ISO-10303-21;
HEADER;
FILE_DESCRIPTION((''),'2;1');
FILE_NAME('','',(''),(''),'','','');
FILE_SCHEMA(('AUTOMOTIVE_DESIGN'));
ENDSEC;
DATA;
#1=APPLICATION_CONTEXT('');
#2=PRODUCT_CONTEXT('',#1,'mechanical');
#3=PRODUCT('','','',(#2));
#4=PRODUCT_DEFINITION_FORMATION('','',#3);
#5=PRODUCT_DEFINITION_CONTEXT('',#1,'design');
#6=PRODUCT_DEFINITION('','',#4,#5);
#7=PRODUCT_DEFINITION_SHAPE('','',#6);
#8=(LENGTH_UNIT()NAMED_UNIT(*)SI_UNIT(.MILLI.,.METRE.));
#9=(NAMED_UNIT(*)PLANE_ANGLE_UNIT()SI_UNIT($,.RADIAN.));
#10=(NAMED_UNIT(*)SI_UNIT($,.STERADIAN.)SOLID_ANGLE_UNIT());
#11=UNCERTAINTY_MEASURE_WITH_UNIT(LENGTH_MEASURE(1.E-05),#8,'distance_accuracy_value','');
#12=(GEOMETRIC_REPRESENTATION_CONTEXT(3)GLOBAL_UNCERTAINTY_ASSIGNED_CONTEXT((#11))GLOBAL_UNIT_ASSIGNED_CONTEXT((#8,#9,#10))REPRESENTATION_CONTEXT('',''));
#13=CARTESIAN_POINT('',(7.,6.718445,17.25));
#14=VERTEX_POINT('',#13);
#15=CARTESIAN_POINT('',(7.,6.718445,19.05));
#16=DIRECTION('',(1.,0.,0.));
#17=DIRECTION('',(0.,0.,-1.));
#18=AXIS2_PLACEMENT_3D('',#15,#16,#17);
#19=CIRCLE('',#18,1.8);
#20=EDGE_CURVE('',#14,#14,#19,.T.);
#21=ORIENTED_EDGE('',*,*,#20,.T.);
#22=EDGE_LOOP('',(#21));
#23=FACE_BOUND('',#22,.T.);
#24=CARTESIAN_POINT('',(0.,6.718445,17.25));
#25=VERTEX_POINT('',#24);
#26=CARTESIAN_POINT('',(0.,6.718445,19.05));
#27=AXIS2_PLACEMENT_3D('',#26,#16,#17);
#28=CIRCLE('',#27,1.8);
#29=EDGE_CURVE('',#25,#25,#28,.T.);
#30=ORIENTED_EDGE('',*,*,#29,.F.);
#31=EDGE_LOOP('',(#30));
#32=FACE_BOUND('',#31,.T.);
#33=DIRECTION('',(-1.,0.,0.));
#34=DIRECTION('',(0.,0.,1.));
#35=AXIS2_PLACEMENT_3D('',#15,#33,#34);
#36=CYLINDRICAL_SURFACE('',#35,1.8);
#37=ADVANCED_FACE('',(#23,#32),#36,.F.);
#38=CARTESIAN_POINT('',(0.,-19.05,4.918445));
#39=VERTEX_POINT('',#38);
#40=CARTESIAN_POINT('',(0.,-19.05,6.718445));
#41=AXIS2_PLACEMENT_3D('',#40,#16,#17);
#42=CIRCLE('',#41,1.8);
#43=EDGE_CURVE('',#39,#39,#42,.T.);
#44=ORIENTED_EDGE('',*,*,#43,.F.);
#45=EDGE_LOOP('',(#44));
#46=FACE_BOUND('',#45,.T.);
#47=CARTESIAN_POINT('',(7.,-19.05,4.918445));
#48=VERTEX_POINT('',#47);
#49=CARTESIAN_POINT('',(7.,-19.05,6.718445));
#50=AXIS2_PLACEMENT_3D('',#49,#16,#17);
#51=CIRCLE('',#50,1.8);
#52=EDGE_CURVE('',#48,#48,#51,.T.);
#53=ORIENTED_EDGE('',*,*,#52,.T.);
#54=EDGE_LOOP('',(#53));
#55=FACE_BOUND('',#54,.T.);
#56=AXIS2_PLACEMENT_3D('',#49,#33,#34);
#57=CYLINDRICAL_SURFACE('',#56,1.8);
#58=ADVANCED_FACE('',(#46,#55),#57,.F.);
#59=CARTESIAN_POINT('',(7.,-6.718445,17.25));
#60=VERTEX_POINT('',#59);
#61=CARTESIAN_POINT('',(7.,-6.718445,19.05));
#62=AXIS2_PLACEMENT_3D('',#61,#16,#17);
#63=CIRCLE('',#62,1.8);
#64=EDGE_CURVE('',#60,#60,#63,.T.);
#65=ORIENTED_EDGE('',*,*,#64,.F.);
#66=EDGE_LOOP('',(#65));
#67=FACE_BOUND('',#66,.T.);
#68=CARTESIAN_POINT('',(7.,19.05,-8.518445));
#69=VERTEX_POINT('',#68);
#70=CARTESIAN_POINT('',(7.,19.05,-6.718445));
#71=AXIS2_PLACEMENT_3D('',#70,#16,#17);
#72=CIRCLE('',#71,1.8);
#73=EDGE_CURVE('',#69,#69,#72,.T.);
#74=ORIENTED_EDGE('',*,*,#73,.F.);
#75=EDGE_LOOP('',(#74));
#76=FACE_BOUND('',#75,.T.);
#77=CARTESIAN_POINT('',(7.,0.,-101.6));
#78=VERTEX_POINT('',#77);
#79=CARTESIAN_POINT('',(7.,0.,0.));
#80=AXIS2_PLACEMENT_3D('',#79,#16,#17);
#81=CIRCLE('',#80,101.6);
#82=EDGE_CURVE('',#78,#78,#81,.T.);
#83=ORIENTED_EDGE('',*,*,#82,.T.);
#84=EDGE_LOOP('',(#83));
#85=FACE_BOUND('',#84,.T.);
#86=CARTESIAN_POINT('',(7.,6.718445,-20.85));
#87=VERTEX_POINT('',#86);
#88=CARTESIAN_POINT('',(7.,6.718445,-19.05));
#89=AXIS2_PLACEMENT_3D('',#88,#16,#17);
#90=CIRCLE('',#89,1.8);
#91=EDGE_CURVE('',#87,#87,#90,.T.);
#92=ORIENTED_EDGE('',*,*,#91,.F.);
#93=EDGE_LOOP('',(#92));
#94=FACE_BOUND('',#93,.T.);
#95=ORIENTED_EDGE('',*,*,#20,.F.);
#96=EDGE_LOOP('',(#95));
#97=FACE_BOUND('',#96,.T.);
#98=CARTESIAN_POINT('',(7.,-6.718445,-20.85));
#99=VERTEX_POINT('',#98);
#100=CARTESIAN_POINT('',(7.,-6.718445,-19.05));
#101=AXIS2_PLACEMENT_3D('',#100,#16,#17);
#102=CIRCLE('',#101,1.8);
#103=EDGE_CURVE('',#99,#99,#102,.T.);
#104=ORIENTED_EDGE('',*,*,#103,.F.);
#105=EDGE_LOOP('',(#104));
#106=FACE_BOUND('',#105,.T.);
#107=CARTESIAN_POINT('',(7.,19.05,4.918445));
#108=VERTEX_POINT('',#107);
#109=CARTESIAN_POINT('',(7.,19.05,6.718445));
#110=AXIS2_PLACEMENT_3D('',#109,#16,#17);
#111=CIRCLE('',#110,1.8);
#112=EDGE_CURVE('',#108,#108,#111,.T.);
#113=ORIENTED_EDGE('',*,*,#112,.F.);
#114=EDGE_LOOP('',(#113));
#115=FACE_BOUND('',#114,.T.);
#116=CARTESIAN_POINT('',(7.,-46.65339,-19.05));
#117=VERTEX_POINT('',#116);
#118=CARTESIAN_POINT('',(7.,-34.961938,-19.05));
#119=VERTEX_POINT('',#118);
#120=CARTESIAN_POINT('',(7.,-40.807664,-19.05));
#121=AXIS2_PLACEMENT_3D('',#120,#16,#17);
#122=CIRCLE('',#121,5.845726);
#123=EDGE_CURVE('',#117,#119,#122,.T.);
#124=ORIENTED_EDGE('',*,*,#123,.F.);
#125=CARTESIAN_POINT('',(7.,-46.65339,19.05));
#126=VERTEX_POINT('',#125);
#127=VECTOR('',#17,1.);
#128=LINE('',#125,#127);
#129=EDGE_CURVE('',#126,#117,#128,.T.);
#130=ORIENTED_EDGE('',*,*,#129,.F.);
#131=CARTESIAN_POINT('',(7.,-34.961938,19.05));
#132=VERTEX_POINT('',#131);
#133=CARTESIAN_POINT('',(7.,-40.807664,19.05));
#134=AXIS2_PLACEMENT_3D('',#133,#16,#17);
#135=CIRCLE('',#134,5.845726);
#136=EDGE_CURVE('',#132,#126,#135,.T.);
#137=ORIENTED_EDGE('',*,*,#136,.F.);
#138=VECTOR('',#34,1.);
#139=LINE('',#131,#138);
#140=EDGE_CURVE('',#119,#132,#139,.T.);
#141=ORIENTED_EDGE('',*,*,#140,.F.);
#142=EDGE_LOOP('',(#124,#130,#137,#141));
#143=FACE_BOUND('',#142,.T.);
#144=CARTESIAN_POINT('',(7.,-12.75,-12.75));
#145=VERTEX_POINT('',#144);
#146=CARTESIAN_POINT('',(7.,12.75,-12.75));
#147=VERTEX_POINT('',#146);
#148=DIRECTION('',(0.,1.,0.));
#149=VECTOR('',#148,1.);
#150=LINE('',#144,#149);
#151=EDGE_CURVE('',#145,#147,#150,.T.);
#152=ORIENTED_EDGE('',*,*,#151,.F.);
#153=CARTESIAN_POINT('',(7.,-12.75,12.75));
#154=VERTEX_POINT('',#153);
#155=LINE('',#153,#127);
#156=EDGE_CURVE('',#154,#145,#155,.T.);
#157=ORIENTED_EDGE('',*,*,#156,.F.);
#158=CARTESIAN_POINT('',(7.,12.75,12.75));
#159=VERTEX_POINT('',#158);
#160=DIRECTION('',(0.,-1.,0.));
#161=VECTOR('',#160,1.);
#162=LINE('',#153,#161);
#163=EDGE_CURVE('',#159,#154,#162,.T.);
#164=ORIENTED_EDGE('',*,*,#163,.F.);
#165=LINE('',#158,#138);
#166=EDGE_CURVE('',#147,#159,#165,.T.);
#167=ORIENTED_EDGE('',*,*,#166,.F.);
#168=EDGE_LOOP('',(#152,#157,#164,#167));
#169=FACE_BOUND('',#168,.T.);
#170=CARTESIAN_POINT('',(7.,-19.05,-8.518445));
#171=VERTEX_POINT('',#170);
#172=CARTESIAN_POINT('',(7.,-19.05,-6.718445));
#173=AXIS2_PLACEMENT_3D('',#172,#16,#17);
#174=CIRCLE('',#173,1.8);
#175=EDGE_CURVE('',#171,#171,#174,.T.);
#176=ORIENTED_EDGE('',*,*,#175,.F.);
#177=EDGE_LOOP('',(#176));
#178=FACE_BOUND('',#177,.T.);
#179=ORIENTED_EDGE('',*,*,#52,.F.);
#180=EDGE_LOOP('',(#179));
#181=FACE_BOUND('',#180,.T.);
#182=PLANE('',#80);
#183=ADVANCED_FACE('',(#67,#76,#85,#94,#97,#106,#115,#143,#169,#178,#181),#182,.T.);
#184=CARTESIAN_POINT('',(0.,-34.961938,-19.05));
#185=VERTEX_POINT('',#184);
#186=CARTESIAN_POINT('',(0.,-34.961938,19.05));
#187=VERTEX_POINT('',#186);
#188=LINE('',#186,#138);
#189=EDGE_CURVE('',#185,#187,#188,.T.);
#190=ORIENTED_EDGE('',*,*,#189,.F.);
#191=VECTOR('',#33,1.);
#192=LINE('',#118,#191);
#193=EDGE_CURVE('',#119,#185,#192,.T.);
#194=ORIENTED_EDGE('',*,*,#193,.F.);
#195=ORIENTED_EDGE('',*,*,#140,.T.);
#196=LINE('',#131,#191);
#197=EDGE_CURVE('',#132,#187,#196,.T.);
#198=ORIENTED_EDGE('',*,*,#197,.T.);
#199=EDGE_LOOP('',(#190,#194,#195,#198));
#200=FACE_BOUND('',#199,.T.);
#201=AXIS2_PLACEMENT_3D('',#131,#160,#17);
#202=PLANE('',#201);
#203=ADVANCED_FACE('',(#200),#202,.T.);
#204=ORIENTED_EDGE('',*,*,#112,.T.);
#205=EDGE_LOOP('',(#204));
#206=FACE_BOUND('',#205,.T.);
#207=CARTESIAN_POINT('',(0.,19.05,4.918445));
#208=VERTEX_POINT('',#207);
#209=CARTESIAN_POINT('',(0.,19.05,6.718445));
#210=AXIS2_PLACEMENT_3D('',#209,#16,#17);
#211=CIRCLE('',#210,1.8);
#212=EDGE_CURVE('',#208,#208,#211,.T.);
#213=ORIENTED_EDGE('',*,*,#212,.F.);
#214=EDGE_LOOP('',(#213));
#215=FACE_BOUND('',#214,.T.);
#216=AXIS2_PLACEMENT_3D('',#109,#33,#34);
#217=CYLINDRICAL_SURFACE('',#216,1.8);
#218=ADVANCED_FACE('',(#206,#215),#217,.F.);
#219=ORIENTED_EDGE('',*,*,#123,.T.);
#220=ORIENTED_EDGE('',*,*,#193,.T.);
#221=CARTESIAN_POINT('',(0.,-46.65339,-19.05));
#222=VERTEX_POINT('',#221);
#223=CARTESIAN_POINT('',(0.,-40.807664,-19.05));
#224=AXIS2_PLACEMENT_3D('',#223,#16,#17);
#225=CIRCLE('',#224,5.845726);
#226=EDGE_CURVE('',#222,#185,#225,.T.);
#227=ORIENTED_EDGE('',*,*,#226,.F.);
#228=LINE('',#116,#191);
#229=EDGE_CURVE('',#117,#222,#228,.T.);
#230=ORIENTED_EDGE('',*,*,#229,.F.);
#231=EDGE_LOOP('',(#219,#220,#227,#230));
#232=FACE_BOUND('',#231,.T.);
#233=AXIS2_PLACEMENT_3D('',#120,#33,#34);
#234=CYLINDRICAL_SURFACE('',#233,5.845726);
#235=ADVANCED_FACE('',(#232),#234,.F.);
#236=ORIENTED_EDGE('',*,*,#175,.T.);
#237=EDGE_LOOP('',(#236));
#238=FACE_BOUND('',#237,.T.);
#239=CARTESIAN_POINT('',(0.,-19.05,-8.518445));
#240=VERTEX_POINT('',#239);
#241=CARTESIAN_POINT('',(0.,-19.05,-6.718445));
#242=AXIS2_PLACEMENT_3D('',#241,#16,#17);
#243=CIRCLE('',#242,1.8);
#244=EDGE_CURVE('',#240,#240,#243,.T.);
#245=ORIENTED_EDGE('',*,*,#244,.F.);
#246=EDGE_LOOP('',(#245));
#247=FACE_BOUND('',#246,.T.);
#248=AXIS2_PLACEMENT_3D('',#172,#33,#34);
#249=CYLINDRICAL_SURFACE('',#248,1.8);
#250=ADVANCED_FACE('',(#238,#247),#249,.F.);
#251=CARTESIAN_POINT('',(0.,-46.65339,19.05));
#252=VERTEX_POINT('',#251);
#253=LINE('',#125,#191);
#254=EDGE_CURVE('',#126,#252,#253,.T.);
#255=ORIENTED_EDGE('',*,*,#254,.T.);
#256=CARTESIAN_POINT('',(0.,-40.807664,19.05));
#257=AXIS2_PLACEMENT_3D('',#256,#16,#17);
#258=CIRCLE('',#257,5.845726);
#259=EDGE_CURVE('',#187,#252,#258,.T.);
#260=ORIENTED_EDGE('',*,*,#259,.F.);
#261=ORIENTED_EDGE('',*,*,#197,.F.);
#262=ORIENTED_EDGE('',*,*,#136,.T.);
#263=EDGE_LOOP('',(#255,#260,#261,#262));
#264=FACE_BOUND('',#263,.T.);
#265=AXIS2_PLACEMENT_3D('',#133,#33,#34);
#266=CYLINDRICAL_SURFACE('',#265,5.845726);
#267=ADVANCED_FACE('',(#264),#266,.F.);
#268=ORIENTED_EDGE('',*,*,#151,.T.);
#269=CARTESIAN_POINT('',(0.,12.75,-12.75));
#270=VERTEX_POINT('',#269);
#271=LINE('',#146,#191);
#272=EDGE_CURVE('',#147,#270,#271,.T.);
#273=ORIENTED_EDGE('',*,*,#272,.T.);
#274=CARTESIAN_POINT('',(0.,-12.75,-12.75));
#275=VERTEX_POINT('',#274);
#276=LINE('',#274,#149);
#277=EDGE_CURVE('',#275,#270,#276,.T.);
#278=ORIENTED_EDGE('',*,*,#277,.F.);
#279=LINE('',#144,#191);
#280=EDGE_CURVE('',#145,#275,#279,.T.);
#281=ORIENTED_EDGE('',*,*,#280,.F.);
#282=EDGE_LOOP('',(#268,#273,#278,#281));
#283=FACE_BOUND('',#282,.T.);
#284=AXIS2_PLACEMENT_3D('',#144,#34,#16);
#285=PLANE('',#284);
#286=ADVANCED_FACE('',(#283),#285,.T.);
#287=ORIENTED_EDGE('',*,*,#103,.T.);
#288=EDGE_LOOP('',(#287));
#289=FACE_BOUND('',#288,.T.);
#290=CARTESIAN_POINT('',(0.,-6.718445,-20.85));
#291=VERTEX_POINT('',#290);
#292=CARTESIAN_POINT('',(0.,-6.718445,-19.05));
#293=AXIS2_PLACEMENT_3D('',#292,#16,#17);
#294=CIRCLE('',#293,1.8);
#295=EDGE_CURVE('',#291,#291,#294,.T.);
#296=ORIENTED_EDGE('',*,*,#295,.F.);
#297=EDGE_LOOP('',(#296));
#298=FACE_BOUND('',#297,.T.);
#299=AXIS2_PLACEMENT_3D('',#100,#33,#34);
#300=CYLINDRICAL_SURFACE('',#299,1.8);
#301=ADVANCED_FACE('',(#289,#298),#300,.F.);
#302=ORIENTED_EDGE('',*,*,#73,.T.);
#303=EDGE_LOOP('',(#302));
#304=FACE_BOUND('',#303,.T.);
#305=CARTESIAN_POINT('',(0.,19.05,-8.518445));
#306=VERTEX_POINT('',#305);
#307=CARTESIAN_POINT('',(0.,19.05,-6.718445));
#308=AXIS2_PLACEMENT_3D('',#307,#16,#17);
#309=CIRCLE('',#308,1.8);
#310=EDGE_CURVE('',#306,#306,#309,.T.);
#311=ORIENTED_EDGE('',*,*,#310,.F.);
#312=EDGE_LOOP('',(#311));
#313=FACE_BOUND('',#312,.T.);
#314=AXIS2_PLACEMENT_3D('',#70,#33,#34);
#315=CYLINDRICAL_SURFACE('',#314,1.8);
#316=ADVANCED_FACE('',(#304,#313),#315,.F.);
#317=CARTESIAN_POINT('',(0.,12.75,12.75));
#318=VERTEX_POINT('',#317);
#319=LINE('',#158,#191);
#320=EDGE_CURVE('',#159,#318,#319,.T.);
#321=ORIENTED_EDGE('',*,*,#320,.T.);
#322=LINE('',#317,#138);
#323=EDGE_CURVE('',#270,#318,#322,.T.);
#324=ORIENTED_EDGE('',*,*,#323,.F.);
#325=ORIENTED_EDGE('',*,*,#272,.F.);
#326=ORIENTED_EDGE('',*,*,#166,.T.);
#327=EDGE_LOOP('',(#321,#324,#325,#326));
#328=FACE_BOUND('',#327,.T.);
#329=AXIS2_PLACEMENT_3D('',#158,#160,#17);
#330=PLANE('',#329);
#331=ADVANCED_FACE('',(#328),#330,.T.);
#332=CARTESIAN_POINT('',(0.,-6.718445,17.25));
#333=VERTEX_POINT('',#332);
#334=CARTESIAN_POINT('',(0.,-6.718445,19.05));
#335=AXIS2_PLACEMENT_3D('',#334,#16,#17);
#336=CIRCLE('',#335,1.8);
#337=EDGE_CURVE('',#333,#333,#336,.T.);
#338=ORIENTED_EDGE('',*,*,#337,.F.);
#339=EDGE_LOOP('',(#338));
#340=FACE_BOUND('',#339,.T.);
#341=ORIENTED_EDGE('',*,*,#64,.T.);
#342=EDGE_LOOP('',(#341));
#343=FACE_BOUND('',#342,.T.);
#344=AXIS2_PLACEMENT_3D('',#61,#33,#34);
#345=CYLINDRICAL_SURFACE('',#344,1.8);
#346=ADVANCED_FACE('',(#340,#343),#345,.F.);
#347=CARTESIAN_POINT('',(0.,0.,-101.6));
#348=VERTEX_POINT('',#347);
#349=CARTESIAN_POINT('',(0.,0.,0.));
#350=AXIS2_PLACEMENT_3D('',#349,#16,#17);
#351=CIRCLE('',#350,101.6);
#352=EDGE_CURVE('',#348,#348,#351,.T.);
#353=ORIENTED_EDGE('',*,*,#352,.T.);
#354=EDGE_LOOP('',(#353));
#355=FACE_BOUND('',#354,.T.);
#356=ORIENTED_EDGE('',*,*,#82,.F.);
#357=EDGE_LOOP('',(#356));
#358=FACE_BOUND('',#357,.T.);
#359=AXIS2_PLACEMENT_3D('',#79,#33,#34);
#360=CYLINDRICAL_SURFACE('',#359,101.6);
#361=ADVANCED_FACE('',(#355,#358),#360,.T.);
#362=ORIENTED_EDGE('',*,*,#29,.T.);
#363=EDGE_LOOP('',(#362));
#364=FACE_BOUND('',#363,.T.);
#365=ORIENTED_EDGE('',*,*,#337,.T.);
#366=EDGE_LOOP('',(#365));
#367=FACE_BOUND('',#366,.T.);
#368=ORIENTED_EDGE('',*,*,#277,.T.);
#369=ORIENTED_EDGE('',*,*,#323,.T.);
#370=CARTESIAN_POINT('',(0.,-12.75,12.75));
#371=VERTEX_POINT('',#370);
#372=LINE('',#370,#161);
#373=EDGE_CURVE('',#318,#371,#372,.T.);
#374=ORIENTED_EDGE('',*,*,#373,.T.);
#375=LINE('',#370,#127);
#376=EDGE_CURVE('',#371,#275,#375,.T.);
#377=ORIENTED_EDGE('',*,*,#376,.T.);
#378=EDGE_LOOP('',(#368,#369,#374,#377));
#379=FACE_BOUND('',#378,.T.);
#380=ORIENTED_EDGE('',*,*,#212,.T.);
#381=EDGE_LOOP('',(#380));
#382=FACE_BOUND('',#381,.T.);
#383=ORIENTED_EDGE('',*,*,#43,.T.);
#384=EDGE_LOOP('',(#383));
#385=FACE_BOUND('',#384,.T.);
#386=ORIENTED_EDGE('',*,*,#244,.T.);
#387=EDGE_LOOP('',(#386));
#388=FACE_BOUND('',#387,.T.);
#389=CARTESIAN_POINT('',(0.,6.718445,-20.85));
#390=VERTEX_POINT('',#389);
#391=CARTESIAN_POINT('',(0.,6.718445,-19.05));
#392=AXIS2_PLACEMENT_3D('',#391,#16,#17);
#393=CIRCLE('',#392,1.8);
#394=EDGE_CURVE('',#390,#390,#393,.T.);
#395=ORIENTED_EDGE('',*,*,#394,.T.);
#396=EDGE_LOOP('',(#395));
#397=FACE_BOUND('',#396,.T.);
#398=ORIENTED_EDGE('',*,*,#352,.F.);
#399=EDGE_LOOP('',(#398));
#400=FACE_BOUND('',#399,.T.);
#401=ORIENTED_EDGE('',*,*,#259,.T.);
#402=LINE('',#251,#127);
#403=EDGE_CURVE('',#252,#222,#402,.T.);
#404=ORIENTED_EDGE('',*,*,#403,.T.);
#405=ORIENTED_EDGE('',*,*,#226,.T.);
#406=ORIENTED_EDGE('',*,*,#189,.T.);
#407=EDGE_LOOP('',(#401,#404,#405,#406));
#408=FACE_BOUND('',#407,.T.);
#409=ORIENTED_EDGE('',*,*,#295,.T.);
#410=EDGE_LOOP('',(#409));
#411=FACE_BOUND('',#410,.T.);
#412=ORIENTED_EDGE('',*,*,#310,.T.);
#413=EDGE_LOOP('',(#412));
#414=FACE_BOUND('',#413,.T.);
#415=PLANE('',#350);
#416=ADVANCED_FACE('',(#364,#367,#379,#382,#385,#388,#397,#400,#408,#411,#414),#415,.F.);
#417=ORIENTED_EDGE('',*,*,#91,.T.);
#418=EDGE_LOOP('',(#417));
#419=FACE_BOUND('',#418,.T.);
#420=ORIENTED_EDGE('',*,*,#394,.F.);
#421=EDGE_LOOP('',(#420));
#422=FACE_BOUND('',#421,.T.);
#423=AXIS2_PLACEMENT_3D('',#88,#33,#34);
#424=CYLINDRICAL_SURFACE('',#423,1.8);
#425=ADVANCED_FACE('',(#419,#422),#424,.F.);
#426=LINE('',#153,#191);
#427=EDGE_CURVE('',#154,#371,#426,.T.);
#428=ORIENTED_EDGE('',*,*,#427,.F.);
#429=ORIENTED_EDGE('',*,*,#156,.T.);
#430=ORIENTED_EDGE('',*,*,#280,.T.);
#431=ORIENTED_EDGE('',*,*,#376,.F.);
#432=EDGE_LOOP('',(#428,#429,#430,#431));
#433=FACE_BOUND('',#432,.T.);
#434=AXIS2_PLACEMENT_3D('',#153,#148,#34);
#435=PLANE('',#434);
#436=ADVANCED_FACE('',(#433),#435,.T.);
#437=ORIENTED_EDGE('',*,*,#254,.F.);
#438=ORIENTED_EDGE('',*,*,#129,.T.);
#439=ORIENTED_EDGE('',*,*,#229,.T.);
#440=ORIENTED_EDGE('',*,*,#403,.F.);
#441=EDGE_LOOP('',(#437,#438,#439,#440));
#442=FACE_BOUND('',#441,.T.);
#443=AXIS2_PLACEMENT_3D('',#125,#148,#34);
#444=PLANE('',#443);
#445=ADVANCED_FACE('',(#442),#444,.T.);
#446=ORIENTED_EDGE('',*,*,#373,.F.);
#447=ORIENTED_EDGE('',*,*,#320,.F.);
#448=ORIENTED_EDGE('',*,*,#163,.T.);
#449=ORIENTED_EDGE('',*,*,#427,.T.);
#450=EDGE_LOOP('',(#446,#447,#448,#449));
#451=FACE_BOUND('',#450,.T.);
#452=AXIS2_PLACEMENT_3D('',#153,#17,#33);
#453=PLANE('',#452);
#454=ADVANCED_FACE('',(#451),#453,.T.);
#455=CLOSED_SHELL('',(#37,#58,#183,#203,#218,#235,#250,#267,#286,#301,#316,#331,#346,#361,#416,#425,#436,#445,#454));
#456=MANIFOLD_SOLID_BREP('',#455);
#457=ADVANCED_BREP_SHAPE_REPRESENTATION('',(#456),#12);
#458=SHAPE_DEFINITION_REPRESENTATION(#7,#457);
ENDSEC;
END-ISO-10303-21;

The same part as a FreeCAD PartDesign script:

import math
import FreeCAD as App
import Part
import Sketcher

V = App.Vector
Q = App.Units.Quantity

doc = App.newDocument("Part")
params = doc.addObject("Spreadsheet::Sheet", "Params")
for row, (alias, value) in enumerate([
    ("sketch1_diameter", "203.2 mm"),
    ("sketch1_diameter2", "3.6 mm"),
    ("sketch1_width", "25.5 mm"),
    ("sketch1_height", "38.1 mm"),
    ("pad1_length", "7 mm"),
], start=1):
    params.set(f"A{row}", alias)
    params.set(f"B{row}", "=" + value)
    params.setAlias(f"B{row}", alias)

body = doc.addObject("PartDesign::Body", "Body")

sketch1 = body.newObject("Sketcher::SketchObject", "Sketch")
sketch1.AttachmentSupport = (doc.getObject("YZ_Plane"), [""])
sketch1.MapMode = "FlatFace"
sketch1.addGeometry(Part.Circle(V(0, 0, 0), V(0, 0, 1), 101.6), False)
sketch1.addGeometry(Part.Circle(V(-19.05, 6.718445, 0), V(0, 0, 1), 1.8), False)
sketch1.addGeometry(Part.ArcOfCircle(Part.Circle(V(-40.807664, 19.05, 0), V(0, 0, 1), 5.845726), math.radians(0), math.radians(180)), False)
sketch1.addGeometry(Part.LineSegment(V(-34.961938, 19.05, 0), V(-34.961938, -19.05, 0)), False)
sketch1.addGeometry(Part.ArcOfCircle(Part.Circle(V(-40.807664, -19.05, 0), V(0, 0, 1), 5.845726), math.radians(180), math.radians(360)), False)
sketch1.addGeometry(Part.LineSegment(V(-46.65339, -19.05, 0), V(-46.65339, 19.05, 0)), False)
sketch1.addGeometry(Part.Circle(V(-19.05, -6.718445, 0), V(0, 0, 1), 1.8), False)
sketch1.addGeometry(Part.Circle(V(-6.718445, 19.05, 0), V(0, 0, 1), 1.8), False)
sketch1.addGeometry(Part.Circle(V(6.718445, 19.05, 0), V(0, 0, 1), 1.8), False)
sketch1.addGeometry(Part.Circle(V(19.05, 6.718445, 0), V(0, 0, 1), 1.8), False)
sketch1.addGeometry(Part.LineSegment(V(-12.75, -12.75, 0), V(-12.75, 12.75, 0)), False)
sketch1.addGeometry(Part.LineSegment(V(-12.75, 12.75, 0), V(12.75, 12.75, 0)), False)
sketch1.addGeometry(Part.LineSegment(V(12.75, 12.75, 0), V(12.75, -12.75, 0)), False)
sketch1.addGeometry(Part.LineSegment(V(12.75, -12.75, 0), V(-12.75, -12.75, 0)), False)
sketch1.addGeometry(Part.Circle(V(-6.718445, -19.05, 0), V(0, 0, 1), 1.8), False)
sketch1.addGeometry(Part.Circle(V(19.05, -6.718445, 0), V(0, 0, 1), 1.8), False)
sketch1.addGeometry(Part.Circle(V(6.718445, -19.05, 0), V(0, 0, 1), 1.8), False)
sketch1.addConstraint(Sketcher.Constraint("Tangent", 2, 1, 3, 1))
sketch1.addConstraint(Sketcher.Constraint("Tangent", 3, 2, 4, 2))
sketch1.addConstraint(Sketcher.Constraint("Tangent", 4, 1, 5, 1))
sketch1.addConstraint(Sketcher.Constraint("Tangent", 5, 2, 2, 2))
sketch1.addConstraint(Sketcher.Constraint("Coincident", 10, 2, 11, 1))
sketch1.addConstraint(Sketcher.Constraint("Coincident", 11, 2, 12, 1))
sketch1.addConstraint(Sketcher.Constraint("Coincident", 12, 2, 13, 1))
sketch1.addConstraint(Sketcher.Constraint("Coincident", 13, 2, 10, 1))
sketch1.addConstraint(Sketcher.Constraint("Vertical", 3))
sketch1.addConstraint(Sketcher.Constraint("Vertical", 5))
sketch1.addConstraint(Sketcher.Constraint("Vertical", 10))
sketch1.addConstraint(Sketcher.Constraint("Horizontal", 11))
sketch1.addConstraint(Sketcher.Constraint("Vertical", 12))
sketch1.addConstraint(Sketcher.Constraint("Horizontal", 13))
sketch1.addConstraint(Sketcher.Constraint("Coincident", 0, 3, -1, 1))
sketch1.addConstraint(Sketcher.Constraint("Equal", 1, 6))
sketch1.addConstraint(Sketcher.Constraint("Equal", 6, 7))
sketch1.addConstraint(Sketcher.Constraint("Equal", 7, 8))
sketch1.addConstraint(Sketcher.Constraint("Equal", 8, 9))
sketch1.addConstraint(Sketcher.Constraint("Equal", 9, 14))
sketch1.addConstraint(Sketcher.Constraint("Equal", 14, 15))
sketch1.addConstraint(Sketcher.Constraint("Equal", 15, 16))
sketch1.addConstraint(Sketcher.Constraint("Symmetric", 6, 3, 9, 3, -1, 1))
sketch1.addConstraint(Sketcher.Constraint("Symmetric", 8, 3, 14, 3, -1, 1))
sketch1.addConstraint(Sketcher.Constraint("Symmetric", 1, 3, 15, 3, -1, 1))
sketch1.addConstraint(Sketcher.Constraint("Symmetric", 7, 3, 16, 3, -1, 1))
sketch1.addConstraint(Sketcher.Constraint("Symmetric", 10, 2, 12, 2, -1, 1))
sketch1.addConstraint(Sketcher.Constraint("Symmetric", 7, 3, 8, 3, -2))
sketch1.addConstraint(Sketcher.Constraint("Symmetric", 1, 3, 9, 3, -2))
sketch1.addConstraint(Sketcher.Constraint("Horizontal", 2, 3, 7, 3))
sketch1.addConstraint(Sketcher.Constraint("Horizontal", 4, 3, 14, 3))
sketch1.addConstraint(Sketcher.Constraint("Equal", 13, 10))
sketch1.addConstraint(Sketcher.Constraint("Diameter", 0, Q("203.2 mm")))
sketch1.addConstraint(Sketcher.Constraint("Diameter", 1, Q("3.6 mm")))
sketch1.addConstraint(Sketcher.Constraint("DistanceX", 11, 1, 11, 2, Q("25.5 mm")))
sketch1.addConstraint(Sketcher.Constraint("DistanceY", 3, 2, 3, 1, Q("38.1 mm")))
sketch1.addConstraint(Sketcher.Constraint("DistanceX", 1, 3, 9, 3, Q("38.1 mm")))
sketch1.addConstraint(Sketcher.Constraint("Radius", 2, Q("5.845726 mm")))
sketch1.addConstraint(Sketcher.Constraint("DistanceX", 4, 1, -1, 1, Q("46.65339 mm")))
sketch1.addConstraint(Sketcher.Constraint("DistanceY", 6, 3, 1, 3, Q("13.43689 mm")))
sketch1.addConstraint(Sketcher.Constraint("DistanceX", 2, 3, 7, 3, Q("34.089219 mm")))
sketch1.setExpression("Constraints[32]", "Params.sketch1_diameter")
sketch1.setExpression("Constraints[33]", "Params.sketch1_diameter2")
sketch1.setExpression("Constraints[34]", "Params.sketch1_width")
sketch1.setExpression("Constraints[35]", "Params.sketch1_height")
pad1 = body.newObject("PartDesign::Pad", "Pad")
pad1.Profile = sketch1
pad1.setExpression("Length", "Params.pad1_length")

doc.recompute()
